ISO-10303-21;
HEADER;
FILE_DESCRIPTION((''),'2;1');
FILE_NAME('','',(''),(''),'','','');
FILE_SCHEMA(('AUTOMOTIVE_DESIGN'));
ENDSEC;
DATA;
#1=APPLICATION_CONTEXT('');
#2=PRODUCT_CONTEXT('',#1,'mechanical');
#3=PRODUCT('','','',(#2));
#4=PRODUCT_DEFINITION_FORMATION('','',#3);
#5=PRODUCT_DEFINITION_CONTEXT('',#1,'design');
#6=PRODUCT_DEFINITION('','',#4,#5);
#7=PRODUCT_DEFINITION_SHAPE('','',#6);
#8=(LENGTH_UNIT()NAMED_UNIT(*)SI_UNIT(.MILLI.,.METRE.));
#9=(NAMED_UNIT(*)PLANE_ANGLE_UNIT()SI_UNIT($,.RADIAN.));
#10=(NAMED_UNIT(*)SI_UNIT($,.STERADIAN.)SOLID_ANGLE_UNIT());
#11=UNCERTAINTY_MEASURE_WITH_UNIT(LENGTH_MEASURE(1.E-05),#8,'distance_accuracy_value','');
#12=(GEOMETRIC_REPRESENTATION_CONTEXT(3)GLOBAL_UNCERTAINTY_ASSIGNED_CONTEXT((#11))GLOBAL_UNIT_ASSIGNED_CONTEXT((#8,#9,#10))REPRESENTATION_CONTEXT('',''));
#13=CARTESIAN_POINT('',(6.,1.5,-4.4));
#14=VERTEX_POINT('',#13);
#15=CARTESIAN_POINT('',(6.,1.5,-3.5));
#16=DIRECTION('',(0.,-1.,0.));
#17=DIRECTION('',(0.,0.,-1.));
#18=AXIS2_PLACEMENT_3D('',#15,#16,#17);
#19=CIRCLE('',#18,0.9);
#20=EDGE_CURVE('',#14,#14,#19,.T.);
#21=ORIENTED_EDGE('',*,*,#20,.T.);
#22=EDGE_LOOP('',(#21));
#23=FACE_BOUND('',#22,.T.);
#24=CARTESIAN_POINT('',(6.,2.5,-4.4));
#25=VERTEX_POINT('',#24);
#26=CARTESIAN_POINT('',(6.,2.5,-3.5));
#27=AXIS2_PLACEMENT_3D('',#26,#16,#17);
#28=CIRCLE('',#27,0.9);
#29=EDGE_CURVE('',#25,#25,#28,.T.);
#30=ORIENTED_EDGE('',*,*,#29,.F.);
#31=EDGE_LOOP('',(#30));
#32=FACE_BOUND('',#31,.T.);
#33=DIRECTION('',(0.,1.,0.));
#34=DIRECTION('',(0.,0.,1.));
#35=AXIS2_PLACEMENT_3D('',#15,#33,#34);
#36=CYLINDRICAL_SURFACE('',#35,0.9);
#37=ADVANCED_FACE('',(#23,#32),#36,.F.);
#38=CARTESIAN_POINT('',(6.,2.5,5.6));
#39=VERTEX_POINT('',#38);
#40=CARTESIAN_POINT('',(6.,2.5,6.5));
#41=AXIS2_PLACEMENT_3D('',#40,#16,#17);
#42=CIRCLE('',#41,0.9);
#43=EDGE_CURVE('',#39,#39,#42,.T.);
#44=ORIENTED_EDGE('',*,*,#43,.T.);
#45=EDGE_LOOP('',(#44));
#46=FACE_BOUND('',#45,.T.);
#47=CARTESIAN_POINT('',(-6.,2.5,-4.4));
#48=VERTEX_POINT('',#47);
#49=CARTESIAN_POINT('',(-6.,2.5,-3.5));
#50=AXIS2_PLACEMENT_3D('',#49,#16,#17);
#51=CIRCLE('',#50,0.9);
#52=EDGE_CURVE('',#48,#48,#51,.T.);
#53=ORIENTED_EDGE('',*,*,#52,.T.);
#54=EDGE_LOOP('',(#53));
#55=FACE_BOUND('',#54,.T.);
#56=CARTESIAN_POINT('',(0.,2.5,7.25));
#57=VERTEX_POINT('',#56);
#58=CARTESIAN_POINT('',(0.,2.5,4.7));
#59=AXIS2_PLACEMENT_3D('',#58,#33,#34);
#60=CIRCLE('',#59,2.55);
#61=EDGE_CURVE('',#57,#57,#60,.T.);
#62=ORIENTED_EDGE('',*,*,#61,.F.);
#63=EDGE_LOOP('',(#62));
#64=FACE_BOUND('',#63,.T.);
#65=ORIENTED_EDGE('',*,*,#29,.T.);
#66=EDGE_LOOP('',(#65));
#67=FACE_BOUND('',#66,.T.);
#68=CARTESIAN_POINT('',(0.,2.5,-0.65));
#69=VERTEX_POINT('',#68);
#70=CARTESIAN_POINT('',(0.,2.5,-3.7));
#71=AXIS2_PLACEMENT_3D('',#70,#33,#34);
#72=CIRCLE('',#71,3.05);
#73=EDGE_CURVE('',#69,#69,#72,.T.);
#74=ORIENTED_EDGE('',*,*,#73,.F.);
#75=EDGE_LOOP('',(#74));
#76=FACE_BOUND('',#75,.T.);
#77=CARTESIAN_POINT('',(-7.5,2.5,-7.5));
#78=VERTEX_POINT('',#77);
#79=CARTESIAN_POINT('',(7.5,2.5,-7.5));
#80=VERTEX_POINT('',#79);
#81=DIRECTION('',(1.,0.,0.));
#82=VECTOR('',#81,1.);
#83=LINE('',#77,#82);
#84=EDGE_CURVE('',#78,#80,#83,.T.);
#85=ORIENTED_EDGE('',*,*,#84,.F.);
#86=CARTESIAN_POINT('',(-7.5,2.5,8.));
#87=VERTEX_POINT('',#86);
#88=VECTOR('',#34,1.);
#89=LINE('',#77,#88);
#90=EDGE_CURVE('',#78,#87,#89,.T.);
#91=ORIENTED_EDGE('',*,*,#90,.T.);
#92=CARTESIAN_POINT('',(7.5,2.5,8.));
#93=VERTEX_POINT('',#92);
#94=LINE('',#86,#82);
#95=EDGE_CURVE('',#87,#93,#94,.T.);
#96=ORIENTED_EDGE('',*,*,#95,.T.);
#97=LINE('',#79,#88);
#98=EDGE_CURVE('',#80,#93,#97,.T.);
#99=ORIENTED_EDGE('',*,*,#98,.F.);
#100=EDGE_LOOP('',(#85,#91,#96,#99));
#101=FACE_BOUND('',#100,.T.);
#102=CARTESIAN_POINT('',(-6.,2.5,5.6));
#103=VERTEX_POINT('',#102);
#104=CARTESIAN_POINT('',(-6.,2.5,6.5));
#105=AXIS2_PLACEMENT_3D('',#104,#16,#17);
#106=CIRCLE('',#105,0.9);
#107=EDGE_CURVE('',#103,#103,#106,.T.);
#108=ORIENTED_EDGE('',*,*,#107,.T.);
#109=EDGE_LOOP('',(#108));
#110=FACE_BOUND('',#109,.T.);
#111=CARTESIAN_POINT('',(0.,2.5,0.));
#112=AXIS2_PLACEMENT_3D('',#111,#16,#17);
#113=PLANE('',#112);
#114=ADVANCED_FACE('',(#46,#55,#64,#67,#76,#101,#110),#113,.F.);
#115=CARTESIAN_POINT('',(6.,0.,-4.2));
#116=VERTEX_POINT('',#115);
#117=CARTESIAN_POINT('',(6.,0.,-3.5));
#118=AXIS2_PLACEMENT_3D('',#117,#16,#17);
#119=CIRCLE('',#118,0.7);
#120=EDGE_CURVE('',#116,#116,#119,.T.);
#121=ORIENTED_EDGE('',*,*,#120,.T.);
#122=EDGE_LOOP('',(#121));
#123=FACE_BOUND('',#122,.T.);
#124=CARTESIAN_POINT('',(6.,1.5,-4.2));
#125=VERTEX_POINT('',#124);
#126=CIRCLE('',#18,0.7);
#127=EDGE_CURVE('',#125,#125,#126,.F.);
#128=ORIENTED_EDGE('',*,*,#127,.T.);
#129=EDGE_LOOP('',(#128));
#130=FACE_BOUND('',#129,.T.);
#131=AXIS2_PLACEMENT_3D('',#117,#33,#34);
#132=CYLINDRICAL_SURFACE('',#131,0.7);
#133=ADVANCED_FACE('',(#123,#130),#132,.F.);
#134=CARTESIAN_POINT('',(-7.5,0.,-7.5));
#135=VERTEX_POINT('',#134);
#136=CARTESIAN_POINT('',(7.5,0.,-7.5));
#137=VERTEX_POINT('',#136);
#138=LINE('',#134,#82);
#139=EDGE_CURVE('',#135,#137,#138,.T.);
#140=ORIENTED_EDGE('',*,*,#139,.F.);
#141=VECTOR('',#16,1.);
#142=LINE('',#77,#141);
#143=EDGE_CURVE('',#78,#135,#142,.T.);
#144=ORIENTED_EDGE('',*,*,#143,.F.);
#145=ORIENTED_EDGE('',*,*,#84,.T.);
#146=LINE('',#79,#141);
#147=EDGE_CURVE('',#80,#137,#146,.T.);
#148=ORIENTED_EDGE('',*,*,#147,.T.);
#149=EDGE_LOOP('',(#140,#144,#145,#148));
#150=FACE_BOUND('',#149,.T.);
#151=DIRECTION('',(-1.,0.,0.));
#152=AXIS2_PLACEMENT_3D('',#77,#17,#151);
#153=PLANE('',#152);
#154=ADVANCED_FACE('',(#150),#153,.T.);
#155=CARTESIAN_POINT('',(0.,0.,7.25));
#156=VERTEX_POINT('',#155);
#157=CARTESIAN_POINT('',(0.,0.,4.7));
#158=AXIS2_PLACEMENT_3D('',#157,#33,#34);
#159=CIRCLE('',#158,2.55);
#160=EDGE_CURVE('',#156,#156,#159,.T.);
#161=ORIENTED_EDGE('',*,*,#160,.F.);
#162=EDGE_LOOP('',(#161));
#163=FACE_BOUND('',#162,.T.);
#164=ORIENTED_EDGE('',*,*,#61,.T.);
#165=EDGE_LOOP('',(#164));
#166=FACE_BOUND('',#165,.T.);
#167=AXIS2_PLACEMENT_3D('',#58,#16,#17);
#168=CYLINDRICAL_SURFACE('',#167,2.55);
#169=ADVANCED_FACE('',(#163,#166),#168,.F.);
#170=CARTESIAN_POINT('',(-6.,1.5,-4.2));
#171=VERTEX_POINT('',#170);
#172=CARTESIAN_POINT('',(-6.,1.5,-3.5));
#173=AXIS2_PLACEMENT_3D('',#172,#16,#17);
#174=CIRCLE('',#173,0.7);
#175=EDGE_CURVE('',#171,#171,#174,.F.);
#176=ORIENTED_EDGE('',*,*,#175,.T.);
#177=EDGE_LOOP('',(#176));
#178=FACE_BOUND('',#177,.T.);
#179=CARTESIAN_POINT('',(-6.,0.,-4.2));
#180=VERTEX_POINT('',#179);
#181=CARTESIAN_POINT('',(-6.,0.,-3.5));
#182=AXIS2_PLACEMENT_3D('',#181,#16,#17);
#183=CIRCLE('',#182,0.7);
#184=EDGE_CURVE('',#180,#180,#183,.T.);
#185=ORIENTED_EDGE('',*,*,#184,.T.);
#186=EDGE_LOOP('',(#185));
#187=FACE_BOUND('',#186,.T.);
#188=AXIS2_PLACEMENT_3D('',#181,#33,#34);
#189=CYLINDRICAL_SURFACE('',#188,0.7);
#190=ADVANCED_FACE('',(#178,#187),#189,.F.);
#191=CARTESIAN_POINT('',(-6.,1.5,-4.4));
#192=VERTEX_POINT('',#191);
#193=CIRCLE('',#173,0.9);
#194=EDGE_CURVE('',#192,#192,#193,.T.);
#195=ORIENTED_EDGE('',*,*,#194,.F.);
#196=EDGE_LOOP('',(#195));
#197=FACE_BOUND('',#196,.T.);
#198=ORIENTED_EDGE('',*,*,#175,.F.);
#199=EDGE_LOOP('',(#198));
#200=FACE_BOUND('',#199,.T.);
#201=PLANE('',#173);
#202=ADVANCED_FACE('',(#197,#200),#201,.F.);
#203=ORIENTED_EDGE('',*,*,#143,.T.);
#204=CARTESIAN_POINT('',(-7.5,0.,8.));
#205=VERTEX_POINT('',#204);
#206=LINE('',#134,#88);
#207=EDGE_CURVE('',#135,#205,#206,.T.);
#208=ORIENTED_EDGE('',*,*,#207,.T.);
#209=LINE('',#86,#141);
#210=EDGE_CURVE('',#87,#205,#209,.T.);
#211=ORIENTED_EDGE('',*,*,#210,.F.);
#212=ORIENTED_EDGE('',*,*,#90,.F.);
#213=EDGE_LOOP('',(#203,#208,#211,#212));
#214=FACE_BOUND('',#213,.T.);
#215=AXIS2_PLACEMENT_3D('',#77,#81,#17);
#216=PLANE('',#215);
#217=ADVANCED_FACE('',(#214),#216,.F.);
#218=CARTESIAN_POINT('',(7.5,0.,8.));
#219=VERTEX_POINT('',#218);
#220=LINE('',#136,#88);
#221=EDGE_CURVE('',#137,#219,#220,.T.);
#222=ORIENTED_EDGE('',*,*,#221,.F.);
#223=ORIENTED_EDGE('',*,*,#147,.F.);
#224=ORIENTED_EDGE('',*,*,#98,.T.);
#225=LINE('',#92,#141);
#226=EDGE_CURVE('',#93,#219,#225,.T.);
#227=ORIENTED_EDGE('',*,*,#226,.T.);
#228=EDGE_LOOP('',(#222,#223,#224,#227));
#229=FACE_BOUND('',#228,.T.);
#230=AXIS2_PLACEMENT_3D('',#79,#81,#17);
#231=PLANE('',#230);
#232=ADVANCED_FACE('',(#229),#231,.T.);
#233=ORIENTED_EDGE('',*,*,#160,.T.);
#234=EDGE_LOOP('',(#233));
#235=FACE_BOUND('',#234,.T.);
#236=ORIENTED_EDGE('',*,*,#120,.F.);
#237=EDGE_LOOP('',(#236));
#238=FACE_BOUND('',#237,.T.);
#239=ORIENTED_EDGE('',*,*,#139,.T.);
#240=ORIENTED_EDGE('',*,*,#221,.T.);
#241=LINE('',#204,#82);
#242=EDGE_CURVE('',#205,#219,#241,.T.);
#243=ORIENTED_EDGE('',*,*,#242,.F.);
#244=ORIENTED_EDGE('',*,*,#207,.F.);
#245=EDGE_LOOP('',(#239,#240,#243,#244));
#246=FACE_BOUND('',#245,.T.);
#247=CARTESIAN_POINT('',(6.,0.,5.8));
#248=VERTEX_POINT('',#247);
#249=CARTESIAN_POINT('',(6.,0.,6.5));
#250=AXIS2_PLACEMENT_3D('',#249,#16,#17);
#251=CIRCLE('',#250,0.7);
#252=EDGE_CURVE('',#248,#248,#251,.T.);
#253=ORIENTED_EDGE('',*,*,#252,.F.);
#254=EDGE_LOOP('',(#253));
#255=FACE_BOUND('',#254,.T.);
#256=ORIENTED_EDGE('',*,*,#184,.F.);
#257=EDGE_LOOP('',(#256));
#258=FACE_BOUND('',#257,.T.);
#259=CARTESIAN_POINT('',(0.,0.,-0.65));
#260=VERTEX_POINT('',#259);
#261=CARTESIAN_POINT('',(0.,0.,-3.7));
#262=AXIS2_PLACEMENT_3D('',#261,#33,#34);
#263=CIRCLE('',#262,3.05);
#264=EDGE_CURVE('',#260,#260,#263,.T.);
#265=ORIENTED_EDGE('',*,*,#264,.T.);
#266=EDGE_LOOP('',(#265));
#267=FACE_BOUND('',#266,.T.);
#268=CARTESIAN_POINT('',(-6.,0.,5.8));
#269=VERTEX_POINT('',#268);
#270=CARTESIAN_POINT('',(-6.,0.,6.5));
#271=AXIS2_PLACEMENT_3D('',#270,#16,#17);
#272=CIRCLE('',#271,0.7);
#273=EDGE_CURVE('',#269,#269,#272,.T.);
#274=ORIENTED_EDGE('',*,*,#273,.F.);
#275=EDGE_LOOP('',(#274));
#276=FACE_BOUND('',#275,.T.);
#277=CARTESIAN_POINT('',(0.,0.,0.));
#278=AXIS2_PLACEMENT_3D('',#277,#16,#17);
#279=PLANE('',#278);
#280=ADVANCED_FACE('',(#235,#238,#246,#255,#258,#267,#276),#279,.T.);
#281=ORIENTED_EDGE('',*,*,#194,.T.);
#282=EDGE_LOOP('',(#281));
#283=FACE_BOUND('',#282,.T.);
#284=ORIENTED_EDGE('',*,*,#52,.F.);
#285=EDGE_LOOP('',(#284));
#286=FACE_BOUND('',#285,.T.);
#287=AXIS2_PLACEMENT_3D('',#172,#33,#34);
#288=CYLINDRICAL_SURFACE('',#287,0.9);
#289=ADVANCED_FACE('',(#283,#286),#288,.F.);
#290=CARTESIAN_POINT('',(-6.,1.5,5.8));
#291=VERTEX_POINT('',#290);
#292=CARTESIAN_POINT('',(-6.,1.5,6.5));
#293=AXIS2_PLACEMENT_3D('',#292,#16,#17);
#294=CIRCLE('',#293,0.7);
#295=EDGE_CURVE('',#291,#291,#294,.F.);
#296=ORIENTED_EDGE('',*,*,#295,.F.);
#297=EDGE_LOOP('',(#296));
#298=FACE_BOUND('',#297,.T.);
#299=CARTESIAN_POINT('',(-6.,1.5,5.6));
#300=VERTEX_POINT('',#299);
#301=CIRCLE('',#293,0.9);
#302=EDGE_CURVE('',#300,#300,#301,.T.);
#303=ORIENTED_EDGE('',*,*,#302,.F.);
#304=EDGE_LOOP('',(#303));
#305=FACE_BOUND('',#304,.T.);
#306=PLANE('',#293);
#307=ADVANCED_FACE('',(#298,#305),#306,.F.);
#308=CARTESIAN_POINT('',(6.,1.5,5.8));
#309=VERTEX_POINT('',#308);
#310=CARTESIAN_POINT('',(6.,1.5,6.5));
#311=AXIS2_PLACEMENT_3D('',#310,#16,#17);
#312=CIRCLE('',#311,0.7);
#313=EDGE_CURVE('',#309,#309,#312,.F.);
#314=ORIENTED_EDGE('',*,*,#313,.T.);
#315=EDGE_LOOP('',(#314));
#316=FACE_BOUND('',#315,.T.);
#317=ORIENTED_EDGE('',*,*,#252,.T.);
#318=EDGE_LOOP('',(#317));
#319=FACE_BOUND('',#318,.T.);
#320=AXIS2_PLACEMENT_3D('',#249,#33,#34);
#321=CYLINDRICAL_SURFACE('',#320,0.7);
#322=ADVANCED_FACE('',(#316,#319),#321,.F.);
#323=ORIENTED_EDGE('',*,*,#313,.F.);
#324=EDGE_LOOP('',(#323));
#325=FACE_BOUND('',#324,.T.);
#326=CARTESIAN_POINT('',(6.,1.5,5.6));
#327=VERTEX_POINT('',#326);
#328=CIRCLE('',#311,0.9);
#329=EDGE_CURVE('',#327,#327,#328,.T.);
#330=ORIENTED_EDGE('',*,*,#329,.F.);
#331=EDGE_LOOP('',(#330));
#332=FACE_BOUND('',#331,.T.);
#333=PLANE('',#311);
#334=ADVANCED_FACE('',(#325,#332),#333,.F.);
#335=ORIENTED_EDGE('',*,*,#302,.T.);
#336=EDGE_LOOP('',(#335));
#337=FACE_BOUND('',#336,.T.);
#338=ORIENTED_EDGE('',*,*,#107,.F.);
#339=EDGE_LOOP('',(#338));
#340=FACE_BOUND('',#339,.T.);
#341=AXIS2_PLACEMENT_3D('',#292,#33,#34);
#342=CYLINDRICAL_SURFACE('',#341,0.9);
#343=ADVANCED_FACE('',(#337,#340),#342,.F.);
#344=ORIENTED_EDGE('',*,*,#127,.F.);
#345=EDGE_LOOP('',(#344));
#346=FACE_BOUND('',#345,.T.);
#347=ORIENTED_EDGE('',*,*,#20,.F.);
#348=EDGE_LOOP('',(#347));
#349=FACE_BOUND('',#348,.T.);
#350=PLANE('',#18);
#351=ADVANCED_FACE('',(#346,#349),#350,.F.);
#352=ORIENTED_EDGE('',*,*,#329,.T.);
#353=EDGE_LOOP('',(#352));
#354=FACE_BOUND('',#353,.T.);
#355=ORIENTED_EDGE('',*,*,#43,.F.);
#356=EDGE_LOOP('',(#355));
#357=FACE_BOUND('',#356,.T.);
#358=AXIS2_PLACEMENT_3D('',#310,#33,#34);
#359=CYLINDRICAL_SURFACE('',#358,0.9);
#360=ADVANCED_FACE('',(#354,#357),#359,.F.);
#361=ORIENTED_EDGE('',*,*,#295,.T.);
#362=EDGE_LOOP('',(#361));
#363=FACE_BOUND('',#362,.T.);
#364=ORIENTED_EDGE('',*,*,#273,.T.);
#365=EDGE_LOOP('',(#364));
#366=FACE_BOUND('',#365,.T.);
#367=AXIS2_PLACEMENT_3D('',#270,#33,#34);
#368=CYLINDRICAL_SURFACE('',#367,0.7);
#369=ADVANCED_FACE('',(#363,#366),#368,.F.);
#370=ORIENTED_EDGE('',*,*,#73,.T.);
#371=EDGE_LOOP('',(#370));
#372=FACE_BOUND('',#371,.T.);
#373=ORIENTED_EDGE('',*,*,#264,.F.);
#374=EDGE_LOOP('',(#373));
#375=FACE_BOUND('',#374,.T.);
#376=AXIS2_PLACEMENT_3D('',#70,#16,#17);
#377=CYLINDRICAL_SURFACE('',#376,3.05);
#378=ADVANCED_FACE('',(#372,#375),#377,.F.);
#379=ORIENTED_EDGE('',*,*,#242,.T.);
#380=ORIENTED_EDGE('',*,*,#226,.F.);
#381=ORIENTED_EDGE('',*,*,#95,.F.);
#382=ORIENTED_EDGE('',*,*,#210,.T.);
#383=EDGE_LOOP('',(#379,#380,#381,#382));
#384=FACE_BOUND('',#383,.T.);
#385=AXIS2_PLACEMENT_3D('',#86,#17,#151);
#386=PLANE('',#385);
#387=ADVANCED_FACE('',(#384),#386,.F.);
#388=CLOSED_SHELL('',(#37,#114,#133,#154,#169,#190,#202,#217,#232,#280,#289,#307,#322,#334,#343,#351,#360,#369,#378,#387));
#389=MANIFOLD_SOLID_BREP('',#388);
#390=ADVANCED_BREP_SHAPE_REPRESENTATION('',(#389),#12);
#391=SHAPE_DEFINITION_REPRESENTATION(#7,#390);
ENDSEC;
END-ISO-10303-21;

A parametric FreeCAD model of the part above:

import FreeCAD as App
import Part
import Sketcher
from FreeCAD import Vector

doc = App.newDocument("Part")
body = doc.addObject("PartDesign::Body", "Body")

sketch1 = body.newObject("Sketcher::SketchObject", "Sketch")
sketch1.AttachmentSupport = (doc.getObject("XZ_Plane"), [""])
sketch1.MapMode = "FlatFace"
sketch1.addGeometry([
    Part.LineSegment(Vector(-7.5, -7.5, 0), Vector(-7.5, 8, 0)),
    Part.LineSegment(Vector(-7.5, 8, 0), Vector(7.5, 8, 0)),
    Part.LineSegment(Vector(7.5, 8, 0), Vector(7.5, -7.5, 0)),
    Part.LineSegment(Vector(7.5, -7.5, 0), Vector(-7.5, -7.5, 0)),
    Part.Circle(Vector(0, 4.7, 0), Vector(0, 0, 1), 2.5),
    Part.Circle(Vector(0, -3.7, 0), Vector(0, 0, 1), 3),
], False)
sketch1.addConstraint([
    Sketcher.Constraint("Coincident", 0, 2, 1, 1),
    Sketcher.Constraint("Coincident", 1, 2, 2, 1),
    Sketcher.Constraint("Coincident", 2, 2, 3, 1),
    Sketcher.Constraint("Coincident", 3, 2, 0, 1),
    Sketcher.Constraint("Vertical", 0),
    Sketcher.Constraint("Horizontal", 1),
    Sketcher.Constraint("Vertical", 2),
    Sketcher.Constraint("Horizontal", 3),
    Sketcher.Constraint("PointOnObject", 4, 3, -2),
    Sketcher.Constraint("PointOnObject", 5, 3, -2),
    Sketcher.Constraint("Diameter", 4, 5.1),
    Sketcher.Constraint("Diameter", 5, 6.1),
    Sketcher.Constraint("DistanceX", 1, 1, 1, 2, 15.0),
    Sketcher.Constraint("DistanceY", 0, 1, 0, 2, 15.5),
    Sketcher.Constraint("DistanceY", -1, 1, 0, 2, 8.0),
    Sketcher.Constraint("DistanceY", -1, 1, 4, 3, 4.7),
    Sketcher.Constraint("DistanceY", 5, 3, -1, 1, 3.7),
    Sketcher.Constraint("DistanceX", 0, 2, -1, 1, 7.5),
])
pad1 = body.newObject("PartDesign::Pad", "Pad")
pad1.Profile = sketch1
pad1.Length = 2.5
pad1.Reversed = True

sketch2 = body.newObject("Sketcher::SketchObject", "Sketch001")
sketch2.AttachmentSupport = (doc.getObject("XZ_Plane"), [""])
sketch2.MapMode = "FlatFace"
sketch2.AttachmentOffset = App.Placement(Vector(0, 0, -2.5), App.Rotation())
sketch2.addGeometry([
    Part.Circle(Vector(-6, 6.5, 0), Vector(0, 0, 1), 0.9),
    Part.Circle(Vector(6, -3.5, 0), Vector(0, 0, 1), 0.9),
    Part.Circle(Vector(-6, -3.5, 0), Vector(0, 0, 1), 0.9),
    Part.Circle(Vector(6, 6.5, 0), Vector(0, 0, 1), 0.9),
], False)
sketch2.addConstraint([
    Sketcher.Constraint("Equal", 0, 1),
    Sketcher.Constraint("Equal", 1, 2),
    Sketcher.Constraint("Equal", 2, 3),
    Sketcher.Constraint("Symmetric", 1, 3, 2, 3, -2),
    Sketcher.Constraint("Symmetric", 0, 3, 3, 3, -2),
    Sketcher.Constraint("Vertical", 0, 3, 2, 3),
    Sketcher.Constraint("Diameter", 0, 1.8),
    Sketcher.Constraint("DistanceX", 0, 3, -1, 1, 6.0),
    Sketcher.Constraint("DistanceY", 1, 3, 0, 3, 10.0),
    Sketcher.Constraint("DistanceY", -1, 1, 0, 3, 6.5),
])
pocket1 = body.newObject("PartDesign::Pocket", "Pocket")
pocket1.Profile = sketch2
pocket1.Length = 1
pocket1.Reversed = True

sketch3 = body.newObject("Sketcher::SketchObject", "Sketch002")
sketch3.AttachmentSupport = (doc.getObject("XZ_Plane"), [""])
sketch3.MapMode = "FlatFace"
sketch3.AttachmentOffset = App.Placement(Vector(0, 0, -2.5), App.Rotation())
sketch3.addGeometry([
    Part.Circle(Vector(-6, 6.5, 0), Vector(0, 0, 1), 0.7),
    Part.Circle(Vector(6, -3.5, 0), Vector(0, 0, 1), 0.7),
    Part.Circle(Vector(-6, -3.5, 0), Vector(0, 0, 1), 0.7),
    Part.Circle(Vector(6, 6.5, 0), Vector(0, 0, 1), 0.7),
], False)
sketch3.addConstraint([
    Sketcher.Constraint("Equal", 0, 1),
    Sketcher.Constraint("Equal", 1, 2),
    Sketcher.Constraint("Equal", 2, 3),
    Sketcher.Constraint("Symmetric", 1, 3, 2, 3, -2),
    Sketcher.Constraint("Symmetric", 0, 3, 3, 3, -2),
    Sketcher.Constraint("Vertical", 0, 3, 2, 3),
    Sketcher.Constraint("Diameter", 0, 1.4),
    Sketcher.Constraint("DistanceX", 0, 3, -1, 1, 6.0),
    Sketcher.Constraint("DistanceY", 1, 3, 0, 3, 10.0),
    Sketcher.Constraint("DistanceY", -1, 1, 0, 3, 6.5),
])
pocket2 = body.newObject("PartDesign::Pocket", "Pocket001")
pocket2.Profile = sketch3
pocket2.Type = "ThroughAll"
pocket2.Reversed = True

doc.recompute()
